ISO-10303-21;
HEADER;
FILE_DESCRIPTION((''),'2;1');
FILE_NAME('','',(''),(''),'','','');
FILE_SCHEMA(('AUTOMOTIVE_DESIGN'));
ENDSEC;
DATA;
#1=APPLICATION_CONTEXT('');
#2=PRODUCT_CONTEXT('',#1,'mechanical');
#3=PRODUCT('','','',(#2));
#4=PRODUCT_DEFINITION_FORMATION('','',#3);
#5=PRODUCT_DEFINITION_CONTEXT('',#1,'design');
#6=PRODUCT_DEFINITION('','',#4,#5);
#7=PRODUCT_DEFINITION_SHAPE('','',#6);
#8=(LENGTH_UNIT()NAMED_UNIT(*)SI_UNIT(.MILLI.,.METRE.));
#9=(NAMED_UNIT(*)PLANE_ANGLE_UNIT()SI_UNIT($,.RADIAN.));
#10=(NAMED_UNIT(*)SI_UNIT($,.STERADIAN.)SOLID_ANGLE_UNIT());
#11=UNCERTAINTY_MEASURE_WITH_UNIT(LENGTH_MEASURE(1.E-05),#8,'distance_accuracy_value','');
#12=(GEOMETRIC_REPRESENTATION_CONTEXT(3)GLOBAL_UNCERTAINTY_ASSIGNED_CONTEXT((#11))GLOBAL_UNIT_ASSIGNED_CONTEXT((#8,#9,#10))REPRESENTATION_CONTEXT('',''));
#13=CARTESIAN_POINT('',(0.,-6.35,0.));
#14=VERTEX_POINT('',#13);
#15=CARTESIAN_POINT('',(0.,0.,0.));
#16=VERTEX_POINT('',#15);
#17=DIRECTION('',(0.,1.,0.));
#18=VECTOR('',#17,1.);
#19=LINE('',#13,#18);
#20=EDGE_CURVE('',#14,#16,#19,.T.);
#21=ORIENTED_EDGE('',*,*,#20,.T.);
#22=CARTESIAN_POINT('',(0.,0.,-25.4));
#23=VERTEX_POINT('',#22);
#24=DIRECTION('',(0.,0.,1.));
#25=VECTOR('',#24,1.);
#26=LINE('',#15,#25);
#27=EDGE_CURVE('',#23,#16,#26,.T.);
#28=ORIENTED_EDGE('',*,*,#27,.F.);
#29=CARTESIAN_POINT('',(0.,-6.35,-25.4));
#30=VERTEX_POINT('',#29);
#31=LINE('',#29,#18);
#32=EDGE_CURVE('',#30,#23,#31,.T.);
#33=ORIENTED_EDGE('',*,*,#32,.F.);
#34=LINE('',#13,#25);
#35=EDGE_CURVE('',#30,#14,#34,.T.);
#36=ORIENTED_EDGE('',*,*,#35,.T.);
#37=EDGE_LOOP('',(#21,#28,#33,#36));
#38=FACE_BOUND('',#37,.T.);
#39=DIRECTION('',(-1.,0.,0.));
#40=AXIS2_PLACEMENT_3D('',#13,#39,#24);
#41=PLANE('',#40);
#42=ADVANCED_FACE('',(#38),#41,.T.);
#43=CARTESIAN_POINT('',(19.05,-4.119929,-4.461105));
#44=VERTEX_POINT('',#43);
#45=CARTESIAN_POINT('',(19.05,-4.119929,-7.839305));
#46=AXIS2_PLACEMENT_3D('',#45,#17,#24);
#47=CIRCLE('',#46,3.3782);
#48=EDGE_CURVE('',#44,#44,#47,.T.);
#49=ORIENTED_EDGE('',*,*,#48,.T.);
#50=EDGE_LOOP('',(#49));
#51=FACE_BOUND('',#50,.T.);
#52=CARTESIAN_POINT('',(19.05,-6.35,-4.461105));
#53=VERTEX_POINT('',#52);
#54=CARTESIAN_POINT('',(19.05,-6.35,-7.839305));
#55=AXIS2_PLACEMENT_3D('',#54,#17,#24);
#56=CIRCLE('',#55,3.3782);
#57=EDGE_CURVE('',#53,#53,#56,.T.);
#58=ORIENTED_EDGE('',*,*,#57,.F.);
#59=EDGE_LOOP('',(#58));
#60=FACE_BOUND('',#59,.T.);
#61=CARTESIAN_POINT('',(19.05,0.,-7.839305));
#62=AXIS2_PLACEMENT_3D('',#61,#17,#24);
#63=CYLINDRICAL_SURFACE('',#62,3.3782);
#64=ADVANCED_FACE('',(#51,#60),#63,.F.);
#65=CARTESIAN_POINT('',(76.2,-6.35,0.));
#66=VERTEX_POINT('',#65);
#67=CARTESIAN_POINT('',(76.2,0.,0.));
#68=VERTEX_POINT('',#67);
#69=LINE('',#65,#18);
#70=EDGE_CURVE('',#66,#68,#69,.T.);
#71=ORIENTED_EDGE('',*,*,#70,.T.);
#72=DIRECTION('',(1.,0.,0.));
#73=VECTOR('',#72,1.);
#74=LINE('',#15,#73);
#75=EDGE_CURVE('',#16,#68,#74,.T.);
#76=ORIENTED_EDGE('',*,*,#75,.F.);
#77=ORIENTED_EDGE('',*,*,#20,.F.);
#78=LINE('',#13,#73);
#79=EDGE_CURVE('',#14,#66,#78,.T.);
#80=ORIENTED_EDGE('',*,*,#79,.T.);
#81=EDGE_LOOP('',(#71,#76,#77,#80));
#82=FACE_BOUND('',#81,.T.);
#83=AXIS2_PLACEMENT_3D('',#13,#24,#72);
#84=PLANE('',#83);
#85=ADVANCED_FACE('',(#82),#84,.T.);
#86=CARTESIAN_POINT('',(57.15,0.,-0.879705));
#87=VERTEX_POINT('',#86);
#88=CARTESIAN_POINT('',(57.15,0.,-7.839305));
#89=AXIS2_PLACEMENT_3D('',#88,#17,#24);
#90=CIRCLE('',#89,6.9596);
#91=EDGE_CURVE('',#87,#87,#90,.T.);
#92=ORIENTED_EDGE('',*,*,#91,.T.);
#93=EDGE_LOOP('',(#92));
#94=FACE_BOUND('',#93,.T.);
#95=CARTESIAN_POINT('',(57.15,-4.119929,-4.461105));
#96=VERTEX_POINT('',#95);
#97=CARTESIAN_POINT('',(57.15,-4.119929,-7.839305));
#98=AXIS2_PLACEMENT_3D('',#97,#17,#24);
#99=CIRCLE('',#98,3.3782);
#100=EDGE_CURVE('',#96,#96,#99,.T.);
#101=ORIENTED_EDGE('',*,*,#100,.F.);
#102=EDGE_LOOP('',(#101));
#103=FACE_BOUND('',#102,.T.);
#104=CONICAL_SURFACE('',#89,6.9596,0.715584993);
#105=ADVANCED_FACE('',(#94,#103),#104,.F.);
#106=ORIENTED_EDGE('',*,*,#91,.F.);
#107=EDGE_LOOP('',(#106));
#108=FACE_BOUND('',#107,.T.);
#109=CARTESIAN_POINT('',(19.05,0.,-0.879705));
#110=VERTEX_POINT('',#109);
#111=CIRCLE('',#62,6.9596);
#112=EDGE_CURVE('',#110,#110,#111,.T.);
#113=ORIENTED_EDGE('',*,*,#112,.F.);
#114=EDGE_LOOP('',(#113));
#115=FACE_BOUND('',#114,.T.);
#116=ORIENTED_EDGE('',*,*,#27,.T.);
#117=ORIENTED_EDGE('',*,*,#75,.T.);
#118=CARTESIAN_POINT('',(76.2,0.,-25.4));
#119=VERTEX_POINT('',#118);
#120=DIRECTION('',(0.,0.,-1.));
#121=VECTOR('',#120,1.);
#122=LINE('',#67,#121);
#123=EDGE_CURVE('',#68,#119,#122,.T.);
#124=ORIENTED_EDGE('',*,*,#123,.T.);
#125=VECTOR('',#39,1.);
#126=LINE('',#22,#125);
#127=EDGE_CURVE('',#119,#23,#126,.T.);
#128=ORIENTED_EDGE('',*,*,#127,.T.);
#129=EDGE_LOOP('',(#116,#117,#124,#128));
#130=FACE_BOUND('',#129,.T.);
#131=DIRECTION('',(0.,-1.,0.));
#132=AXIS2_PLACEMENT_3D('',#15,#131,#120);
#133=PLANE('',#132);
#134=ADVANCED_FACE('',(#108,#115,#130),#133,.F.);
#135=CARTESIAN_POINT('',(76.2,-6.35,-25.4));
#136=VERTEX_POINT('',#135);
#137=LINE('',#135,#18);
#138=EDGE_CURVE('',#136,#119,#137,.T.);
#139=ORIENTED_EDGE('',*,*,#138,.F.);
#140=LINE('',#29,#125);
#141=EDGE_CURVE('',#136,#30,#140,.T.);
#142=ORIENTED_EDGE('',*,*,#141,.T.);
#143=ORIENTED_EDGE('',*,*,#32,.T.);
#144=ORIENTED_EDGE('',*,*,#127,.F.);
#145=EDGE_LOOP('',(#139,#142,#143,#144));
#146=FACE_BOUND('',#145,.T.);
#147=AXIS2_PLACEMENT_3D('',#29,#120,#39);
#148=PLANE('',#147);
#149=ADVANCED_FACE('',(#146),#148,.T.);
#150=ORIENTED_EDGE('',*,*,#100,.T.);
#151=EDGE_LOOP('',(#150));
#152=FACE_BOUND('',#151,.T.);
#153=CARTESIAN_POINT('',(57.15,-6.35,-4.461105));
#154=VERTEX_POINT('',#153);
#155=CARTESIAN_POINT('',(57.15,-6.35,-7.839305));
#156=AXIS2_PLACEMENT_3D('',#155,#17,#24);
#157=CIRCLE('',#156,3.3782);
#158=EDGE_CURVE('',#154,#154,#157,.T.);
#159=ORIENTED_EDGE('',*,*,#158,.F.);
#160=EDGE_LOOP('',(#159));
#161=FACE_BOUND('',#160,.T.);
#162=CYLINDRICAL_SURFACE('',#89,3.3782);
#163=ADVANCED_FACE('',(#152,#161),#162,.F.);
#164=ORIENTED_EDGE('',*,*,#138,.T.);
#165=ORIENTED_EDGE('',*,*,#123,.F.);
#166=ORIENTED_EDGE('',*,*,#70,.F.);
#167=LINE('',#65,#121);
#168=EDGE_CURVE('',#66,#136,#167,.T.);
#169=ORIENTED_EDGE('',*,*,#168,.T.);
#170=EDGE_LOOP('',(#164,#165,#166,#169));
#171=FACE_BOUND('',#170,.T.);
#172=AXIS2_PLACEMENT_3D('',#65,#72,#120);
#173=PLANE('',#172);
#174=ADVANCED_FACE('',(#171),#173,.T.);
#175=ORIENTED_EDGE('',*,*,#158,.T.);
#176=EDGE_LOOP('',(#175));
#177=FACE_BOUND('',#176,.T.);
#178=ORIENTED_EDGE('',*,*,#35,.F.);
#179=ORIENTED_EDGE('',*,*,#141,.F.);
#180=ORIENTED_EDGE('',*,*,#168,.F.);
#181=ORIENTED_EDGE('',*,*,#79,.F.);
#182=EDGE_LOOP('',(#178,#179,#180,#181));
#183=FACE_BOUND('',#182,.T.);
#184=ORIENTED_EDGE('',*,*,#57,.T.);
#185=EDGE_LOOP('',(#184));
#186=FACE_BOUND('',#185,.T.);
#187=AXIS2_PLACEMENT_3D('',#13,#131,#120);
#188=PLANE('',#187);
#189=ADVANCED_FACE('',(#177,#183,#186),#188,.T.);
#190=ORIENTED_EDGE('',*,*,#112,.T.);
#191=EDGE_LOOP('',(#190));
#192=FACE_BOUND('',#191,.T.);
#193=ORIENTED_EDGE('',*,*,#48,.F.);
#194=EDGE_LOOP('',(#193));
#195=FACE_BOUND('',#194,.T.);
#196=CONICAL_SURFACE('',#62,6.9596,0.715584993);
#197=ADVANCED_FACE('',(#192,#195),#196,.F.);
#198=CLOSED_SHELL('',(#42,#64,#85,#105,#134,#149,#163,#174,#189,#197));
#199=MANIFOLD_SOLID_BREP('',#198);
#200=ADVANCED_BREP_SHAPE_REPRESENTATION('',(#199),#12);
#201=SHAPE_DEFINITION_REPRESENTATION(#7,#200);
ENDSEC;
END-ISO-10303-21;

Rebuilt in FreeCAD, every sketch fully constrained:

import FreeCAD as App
import Part
import Sketcher
from FreeCAD import Vector
Q = App.Units.Quantity


def add_polygon(sketch, points):
    """Adds a closed chain of lines whose ends are joined by coincident constraints."""
    first, n = sketch.GeometryCount, len(points)
    for a, b in zip(points, points[1:] + points[:1]):
        sketch.addGeometry(Part.LineSegment(App.Vector(*a, 0), App.Vector(*b, 0)), False)
    for i in range(n):
        sketch.addConstraint(Sketcher.Constraint("Coincident", first + i, 2, first + (i + 1) % n, 1))

doc = App.newDocument("Part")
params = doc.addObject("Spreadsheet::Sheet", "Params")
for row, (alias, value) in enumerate([
    ("sketch1_width", "3 in"),
    ("sketch1_height", "1 in"),
    ("pad1_length", "0.25 in"),
    ("sketch2_width", "0.25 in"),
    ("sketch2_height", "0.274 in"),
    ("sketch2_height2", "0.133 in"),
    ("groove_angle", "360 deg"),
    ("linearpattern_pitch", "1.5 in"),
], start=1):
    params.set(f"A{row}", alias)
    params.set(f"B{row}", "=" + value)
    params.setAlias(f"B{row}", alias)

body = doc.addObject("PartDesign::Body", "Body")

sketch1 = doc.addObject("Sketcher::SketchObject", "Sketch")
body.addObject(sketch1)
sketch1.AttachmentSupport = (doc.XZ_Plane, [""])
sketch1.MapMode = "FlatFace"
add_polygon(sketch1, [(0, -25), (0, 0), (76, 0), (76, -25)])
sketch1.addConstraint([
    Sketcher.Constraint("Vertical", 0),
    Sketcher.Constraint("Horizontal", 1),
    Sketcher.Constraint("Vertical", 2),
    Sketcher.Constraint("Horizontal", 3),
    Sketcher.Constraint("Coincident", 0, 2, -1, 1),
    Sketcher.Constraint("DistanceX", 1, 1, 1, 2, Q("3 in")),
    Sketcher.Constraint("DistanceY", 0, 1, 0, 2, Q("1 in")),
])
sketch1.setExpression("Constraints[9]", "Params.sketch1_width")
sketch1.setExpression("Constraints[10]", "Params.sketch1_height")
pad1 = doc.addObject("PartDesign::Pad", "Pad")
body.addObject(pad1)
pad1.Profile = sketch1
pad1.setExpression("Length", "Params.pad1_length")

sketch2 = doc.addObject("Sketcher::SketchObject", "Sketch001")
body.addObject(sketch2)
sketch2.AttachmentSupport = (doc.YZ_Plane, [""])
sketch2.MapMode = "FlatFace"
sketch2.AttachmentOffset = App.Placement(Vector(0, 0, 0.75 * 25.4), App.Rotation())
add_polygon(sketch2, [(-6.3, -7.8), (0, -7.8), (0, -0.9), (-4.1, -4.5), (-6.3, -4.5)])
sketch2.addGeometry(Part.LineSegment(Vector(0, -7.8, 0), Vector(-6.3, -7.8, 0)), True)
sketch2.addConstraint([
    Sketcher.Constraint("Horizontal", 0),
    Sketcher.Constraint("Vertical", 1),
    Sketcher.Constraint("Horizontal", 3),
    Sketcher.Constraint("Vertical", 4),
    Sketcher.Constraint("Horizontal", 5),
    Sketcher.Constraint("Coincident", 5, 1, 0, 2),
    Sketcher.Constraint("PointOnObject", 0, 2, -2),
    Sketcher.Constraint("Vertical", 3, 2, 5, 2),
    Sketcher.Constraint("Angle", 2, Q("-139 deg")),
    Sketcher.Constraint("DistanceX", 0, 1, 0, 2, Q("0.25 in")),
    Sketcher.Constraint("DistanceY", 1, 1, 1, 2, Q("0.274 in")),
    Sketcher.Constraint("DistanceY", 4, 2, 4, 1, Q("0.133 in")),
    Sketcher.Constraint("DistanceY", 0, 2, -1, 1, Q("7.839305 mm")),
])
sketch2.setExpression("Constraints[14]", "Params.sketch2_width")
sketch2.setExpression("Constraints[15]", "Params.sketch2_height")
sketch2.setExpression("Constraints[16]", "Params.sketch2_height2")
groove = doc.addObject("PartDesign::Groove", "Groove")
body.addObject(groove)
groove.Profile = sketch2
groove.ReferenceAxis = (sketch2, ["Axis0"])
groove.setExpression("Angle", "Params.groove_angle")
doc.recompute()

linearpattern = doc.addObject("PartDesign::LinearPattern", "LinearPattern")
body.addObject(linearpattern)
linearpattern.Originals = [groove]
linearpattern.Direction = (doc.X_Axis, [""])
linearpattern.Mode = "offset"
linearpattern.setExpression("Offset", "Params.linearpattern_pitch")
linearpattern.Occurrences = 2
body.Tip = linearpattern

doc.recompute()
